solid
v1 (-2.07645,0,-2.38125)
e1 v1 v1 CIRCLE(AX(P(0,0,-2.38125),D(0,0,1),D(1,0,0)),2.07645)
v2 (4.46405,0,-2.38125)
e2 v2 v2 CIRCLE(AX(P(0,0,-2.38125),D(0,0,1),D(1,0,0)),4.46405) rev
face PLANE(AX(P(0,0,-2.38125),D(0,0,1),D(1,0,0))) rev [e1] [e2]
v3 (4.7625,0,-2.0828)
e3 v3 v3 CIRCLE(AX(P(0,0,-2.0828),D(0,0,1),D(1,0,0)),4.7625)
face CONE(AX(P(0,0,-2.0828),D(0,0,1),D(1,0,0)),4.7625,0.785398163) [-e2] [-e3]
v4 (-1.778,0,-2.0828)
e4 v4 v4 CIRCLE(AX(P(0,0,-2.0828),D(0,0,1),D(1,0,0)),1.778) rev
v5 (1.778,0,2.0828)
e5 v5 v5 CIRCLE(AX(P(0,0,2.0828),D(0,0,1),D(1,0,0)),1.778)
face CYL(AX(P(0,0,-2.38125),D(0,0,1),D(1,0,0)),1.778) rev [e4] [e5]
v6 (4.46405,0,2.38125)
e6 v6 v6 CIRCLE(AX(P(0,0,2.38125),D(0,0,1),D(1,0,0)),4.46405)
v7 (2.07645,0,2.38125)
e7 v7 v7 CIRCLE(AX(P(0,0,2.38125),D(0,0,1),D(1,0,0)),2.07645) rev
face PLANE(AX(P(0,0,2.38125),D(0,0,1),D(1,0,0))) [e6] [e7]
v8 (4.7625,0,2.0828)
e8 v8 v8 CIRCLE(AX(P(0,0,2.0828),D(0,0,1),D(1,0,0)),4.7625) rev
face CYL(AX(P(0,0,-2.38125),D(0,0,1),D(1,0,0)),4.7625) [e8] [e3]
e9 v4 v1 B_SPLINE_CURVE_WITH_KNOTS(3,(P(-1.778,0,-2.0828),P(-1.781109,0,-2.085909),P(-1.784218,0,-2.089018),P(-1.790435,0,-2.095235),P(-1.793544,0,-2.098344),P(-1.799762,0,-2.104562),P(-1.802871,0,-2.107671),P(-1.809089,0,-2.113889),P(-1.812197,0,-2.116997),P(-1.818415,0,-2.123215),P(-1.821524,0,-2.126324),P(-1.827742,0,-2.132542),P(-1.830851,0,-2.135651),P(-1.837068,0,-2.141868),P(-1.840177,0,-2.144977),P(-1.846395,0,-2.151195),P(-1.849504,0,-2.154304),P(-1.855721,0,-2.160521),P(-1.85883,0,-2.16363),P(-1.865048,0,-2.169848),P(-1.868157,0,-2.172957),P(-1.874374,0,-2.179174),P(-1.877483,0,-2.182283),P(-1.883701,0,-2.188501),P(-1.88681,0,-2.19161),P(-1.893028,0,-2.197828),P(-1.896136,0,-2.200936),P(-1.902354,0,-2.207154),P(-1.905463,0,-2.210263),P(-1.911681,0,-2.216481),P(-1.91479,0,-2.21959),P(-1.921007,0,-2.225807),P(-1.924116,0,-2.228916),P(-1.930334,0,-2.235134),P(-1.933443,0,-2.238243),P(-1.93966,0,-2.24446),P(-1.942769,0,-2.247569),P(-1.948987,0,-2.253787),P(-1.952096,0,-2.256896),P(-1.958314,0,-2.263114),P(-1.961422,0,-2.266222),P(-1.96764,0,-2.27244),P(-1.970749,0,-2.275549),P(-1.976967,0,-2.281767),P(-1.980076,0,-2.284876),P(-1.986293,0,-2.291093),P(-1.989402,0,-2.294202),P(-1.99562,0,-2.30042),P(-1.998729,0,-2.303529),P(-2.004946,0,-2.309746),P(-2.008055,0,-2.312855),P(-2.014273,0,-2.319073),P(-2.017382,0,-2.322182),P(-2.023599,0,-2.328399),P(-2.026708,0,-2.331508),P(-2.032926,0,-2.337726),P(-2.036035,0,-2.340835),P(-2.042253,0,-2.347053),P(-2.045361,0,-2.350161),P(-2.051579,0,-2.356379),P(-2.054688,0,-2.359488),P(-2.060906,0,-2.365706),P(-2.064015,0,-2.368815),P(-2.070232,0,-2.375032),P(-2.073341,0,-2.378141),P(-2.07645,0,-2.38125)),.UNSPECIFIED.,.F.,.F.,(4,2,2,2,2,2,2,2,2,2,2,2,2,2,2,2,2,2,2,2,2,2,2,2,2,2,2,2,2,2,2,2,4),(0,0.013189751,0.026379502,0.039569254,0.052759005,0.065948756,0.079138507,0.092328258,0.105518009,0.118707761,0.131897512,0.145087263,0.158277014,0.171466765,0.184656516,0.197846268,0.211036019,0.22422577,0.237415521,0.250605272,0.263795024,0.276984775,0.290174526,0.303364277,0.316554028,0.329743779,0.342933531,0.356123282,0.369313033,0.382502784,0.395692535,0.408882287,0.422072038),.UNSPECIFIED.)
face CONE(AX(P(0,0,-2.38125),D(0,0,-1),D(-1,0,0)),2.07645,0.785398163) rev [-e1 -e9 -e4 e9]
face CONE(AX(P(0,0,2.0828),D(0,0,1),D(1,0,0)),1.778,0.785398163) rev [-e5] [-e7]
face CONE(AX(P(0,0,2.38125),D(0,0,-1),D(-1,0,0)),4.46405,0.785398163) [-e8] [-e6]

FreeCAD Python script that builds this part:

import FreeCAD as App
import Part
import Sketcher
Q = App.Units.Quantity


def edges_at(feature, points):
    """Names of the edges that pass closest to the given points."""
    edges = feature.Shape.Edges
    near = lambda p: min(range(len(edges)), key=lambda i: edges[i].distToShape(Part.Vertex(*p))[0])
    return sorted({f"Edge{near(p) + 1}" for p in points})

doc = App.newDocument("Part")
body = doc.addObject("PartDesign::Body", "Body")

# Sketch on XY plane
sketch1 = body.newObject("Sketcher::SketchObject", "Sketch")
sketch1.AttachmentSupport = (doc.getObject("XY_Plane"), [""])
sketch1.MapMode = "FlatFace"
sketch1.addGeometry(Part.Circle(App.Vector(0, 0, 0), App.Vector(0, 0, 1), 4.7625), False)
sketch1.addGeometry(Part.Circle(App.Vector(0, 0, 0), App.Vector(0, 0, 1), 1.778), False)
sketch1.addConstraint(Sketcher.Constraint("Coincident", 0, 3, -1, 1))
sketch1.addConstraint(Sketcher.Constraint("Coincident", 1, 3, -1, 1))
sketch1.addConstraint(Sketcher.Constraint("Diameter", 1, Q("0.14 in")))
sketch1.addConstraint(Sketcher.Constraint("Diameter", 0, Q("0.375 in")))
pad1 = body.newObject("PartDesign::Pad", "Pad")
pad1.Profile = sketch1
pad1.Type = "TwoLengths"
pad1.Length = Q("0.09375 in")
pad1.Length2 = Q("0.09375 in")
doc.recompute()

chamfer = body.newObject("PartDesign::Chamfer", "Chamfer")
chamfer.Base = (pad1, edges_at(pad1, [
    (-4.763, 0, -2.381),
    (-1.778, 0, -2.381),
    (-4.763, 0, 2.381),
    (-1.778, 0, 2.381),
]))
chamfer.Size = 0.29845

doc.recompute()
